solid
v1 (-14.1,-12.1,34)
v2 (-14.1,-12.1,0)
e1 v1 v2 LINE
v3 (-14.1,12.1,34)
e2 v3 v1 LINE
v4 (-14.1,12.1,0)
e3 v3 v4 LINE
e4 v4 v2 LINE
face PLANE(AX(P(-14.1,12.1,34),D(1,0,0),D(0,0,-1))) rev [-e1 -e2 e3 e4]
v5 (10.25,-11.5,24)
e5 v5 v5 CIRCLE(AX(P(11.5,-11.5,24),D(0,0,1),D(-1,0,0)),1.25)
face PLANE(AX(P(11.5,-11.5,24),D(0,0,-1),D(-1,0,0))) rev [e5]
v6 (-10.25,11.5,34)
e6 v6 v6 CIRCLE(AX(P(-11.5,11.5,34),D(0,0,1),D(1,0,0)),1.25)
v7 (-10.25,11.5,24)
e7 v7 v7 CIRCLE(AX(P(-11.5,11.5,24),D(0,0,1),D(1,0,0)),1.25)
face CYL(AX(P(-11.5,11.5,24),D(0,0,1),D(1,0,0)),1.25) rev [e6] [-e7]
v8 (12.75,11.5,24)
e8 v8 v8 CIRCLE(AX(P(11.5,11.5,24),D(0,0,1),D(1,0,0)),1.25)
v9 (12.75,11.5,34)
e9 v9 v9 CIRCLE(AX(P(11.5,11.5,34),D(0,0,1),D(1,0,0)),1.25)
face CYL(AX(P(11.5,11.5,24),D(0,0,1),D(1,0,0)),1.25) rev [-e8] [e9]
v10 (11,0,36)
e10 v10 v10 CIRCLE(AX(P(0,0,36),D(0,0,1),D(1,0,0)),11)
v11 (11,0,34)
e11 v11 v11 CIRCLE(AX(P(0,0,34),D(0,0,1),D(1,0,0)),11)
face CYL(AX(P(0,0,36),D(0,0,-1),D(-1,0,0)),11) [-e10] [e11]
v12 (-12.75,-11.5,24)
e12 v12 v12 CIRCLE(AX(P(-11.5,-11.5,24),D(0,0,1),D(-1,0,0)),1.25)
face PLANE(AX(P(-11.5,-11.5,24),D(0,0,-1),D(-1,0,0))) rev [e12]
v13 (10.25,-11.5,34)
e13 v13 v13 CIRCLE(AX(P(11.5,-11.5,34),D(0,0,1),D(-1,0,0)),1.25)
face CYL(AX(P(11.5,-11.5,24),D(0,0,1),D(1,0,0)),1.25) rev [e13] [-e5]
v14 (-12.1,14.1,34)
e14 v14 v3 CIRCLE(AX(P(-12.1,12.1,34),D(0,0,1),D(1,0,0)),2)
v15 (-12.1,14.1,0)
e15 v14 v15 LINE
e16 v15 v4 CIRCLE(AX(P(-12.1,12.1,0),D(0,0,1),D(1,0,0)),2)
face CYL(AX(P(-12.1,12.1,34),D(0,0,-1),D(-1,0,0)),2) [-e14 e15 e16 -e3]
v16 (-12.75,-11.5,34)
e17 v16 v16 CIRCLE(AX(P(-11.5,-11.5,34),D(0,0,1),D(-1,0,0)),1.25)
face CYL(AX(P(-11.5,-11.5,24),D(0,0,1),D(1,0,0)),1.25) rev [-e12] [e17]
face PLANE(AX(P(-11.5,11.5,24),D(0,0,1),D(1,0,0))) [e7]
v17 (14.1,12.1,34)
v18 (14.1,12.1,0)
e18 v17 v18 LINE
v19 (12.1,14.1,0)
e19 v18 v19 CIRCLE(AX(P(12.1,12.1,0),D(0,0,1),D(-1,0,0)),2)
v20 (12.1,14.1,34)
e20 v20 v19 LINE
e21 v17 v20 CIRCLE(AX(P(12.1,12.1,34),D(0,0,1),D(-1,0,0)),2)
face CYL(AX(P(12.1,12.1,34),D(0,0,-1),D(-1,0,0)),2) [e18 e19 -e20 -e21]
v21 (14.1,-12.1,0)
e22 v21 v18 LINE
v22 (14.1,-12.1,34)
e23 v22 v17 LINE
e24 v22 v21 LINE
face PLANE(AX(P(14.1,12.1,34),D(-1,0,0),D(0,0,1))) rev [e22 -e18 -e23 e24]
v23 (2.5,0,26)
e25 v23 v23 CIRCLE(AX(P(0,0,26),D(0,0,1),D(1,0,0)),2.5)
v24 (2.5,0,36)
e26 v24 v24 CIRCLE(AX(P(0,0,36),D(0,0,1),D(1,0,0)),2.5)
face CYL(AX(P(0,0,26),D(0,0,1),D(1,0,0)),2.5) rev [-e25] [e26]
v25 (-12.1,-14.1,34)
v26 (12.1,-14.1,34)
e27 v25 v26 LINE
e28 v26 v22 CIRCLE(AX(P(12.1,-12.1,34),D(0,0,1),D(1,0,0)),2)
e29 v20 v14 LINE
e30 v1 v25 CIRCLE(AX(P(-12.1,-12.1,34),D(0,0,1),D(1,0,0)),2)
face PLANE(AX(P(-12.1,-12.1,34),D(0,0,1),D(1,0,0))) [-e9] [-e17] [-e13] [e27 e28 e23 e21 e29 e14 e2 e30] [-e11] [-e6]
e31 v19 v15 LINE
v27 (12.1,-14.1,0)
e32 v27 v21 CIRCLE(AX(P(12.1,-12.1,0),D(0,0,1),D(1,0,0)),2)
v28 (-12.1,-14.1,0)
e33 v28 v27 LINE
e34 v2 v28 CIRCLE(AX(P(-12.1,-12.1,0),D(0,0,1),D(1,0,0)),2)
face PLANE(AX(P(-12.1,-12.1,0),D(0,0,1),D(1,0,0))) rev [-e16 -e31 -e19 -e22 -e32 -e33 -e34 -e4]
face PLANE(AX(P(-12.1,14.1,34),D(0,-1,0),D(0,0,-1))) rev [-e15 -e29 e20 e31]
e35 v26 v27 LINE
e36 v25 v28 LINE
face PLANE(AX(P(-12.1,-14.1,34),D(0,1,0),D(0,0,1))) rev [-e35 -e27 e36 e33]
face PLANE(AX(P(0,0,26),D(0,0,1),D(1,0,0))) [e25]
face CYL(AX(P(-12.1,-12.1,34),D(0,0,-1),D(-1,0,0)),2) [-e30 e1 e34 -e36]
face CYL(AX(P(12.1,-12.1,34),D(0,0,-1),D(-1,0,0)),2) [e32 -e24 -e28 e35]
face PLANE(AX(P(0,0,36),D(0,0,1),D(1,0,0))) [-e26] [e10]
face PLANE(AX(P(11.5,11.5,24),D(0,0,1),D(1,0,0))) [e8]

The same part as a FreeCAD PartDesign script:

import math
import FreeCAD as App
import Part
import Sketcher
from FreeCAD import Vector
Q = App.Units.Quantity

doc = App.newDocument("Part")
body = doc.addObject("PartDesign::Body", "Body")

sketch1 = doc.addObject("Sketcher::SketchObject", "Sketch")
body.addObject(sketch1)
sketch1.AttachmentSupport = (doc.XY_Plane, [""])
sketch1.MapMode = "FlatFace"
sketch1.addGeometry(Part.LineSegment(Vector(12.1, 14.1, 0), Vector(-12.1, 14.1, 0)), False)
sketch1.addGeometry(Part.ArcOfCircle(Part.Circle(Vector(-12.1, 12.1, 0), Vector(0, 0, 1), 2), math.radians(90), math.radians(180)), False)
sketch1.addGeometry(Part.LineSegment(Vector(-14.1, 12.1, 0), Vector(-14.1, -12.1, 0)), False)
sketch1.addGeometry(Part.ArcOfCircle(Part.Circle(Vector(-12.1, -12.1, 0), Vector(0, 0, 1), 2), math.radians(-180), math.radians(-90)), False)
sketch1.addGeometry(Part.LineSegment(Vector(-12.1, -14.1, 0), Vector(12.1, -14.1, 0)), False)
sketch1.addGeometry(Part.ArcOfCircle(Part.Circle(Vector(12.1, -12.1, 0), Vector(0, 0, 1), 2), math.radians(-90), math.radians(0)), False)
sketch1.addGeometry(Part.LineSegment(Vector(14.1, -12.1, 0), Vector(14.1, 12.1, 0)), False)
sketch1.addGeometry(Part.ArcOfCircle(Part.Circle(Vector(12.1, 12.1, 0), Vector(0, 0, 1), 2), math.radians(0), math.radians(90)), False)
sketch1.addConstraint(Sketcher.Constraint("Tangent", 0, 2, 1, 1))
sketch1.addConstraint(Sketcher.Constraint("Tangent", 1, 2, 2, 1))
sketch1.addConstraint(Sketcher.Constraint("Tangent", 2, 2, 3, 1))
sketch1.addConstraint(Sketcher.Constraint("Tangent", 3, 2, 4, 1))
sketch1.addConstraint(Sketcher.Constraint("Tangent", 4, 2, 5, 1))
sketch1.addConstraint(Sketcher.Constraint("Tangent", 5, 2, 6, 1))
sketch1.addConstraint(Sketcher.Constraint("Tangent", 6, 2, 7, 1))
sketch1.addConstraint(Sketcher.Constraint("Tangent", 7, 2, 0, 1))
sketch1.addConstraint(Sketcher.Constraint("Horizontal", 0))
sketch1.addConstraint(Sketcher.Constraint("Vertical", 2))
sketch1.addConstraint(Sketcher.Constraint("Horizontal", 4))
sketch1.addConstraint(Sketcher.Constraint("Vertical", 6))
sketch1.addConstraint(Sketcher.Constraint("Equal", 1, 3))
sketch1.addConstraint(Sketcher.Constraint("Equal", 3, 5))
sketch1.addConstraint(Sketcher.Constraint("Equal", 5, 7))
sketch1.addConstraint(Sketcher.Constraint("Symmetric", 1, 3, 5, 3, -1, 1))
sketch1.addConstraint(Sketcher.Constraint("Equal", 4, 2))
sketch1.addConstraint(Sketcher.Constraint("Radius", 1, Q("2 mm")))
sketch1.addConstraint(Sketcher.Constraint("DistanceX", 0, 2, 0, 1, Q("24.2 mm")))
pad1 = doc.addObject("PartDesign::Pad", "Pad")
body.addObject(pad1)
pad1.Profile = sketch1
pad1.Length = 34

sketch2 = doc.addObject("Sketcher::SketchObject", "Sketch001")
body.addObject(sketch2)
sketch2.AttachmentSupport = (doc.XY_Plane, [""])
sketch2.MapMode = "FlatFace"
sketch2.AttachmentOffset = App.Placement(Vector(0, 0, 34), App.Rotation())
sketch2.addGeometry(Part.Circle(Vector(0, 0, 0), Vector(0, 0, 1), 11), False)
sketch2.addConstraint(Sketcher.Constraint("Coincident", 0, 3, -1, 1))
sketch2.addConstraint(Sketcher.Constraint("Diameter", 0, Q("22 mm")))
pad2 = doc.addObject("PartDesign::Pad", "Pad001")
body.addObject(pad2)
pad2.Profile = sketch2
pad2.Length = 2

sketch3 = doc.addObject("Sketcher::SketchObject", "Sketch002")
body.addObject(sketch3)
sketch3.AttachmentSupport = (doc.XY_Plane, [""])
sketch3.MapMode = "FlatFace"
sketch3.AttachmentOffset = App.Placement(Vector(0, 0, 36), App.Rotation())
sketch3.addGeometry(Part.Circle(Vector(0, 0, 0), Vector(0, 0, 1), 2.5), False)
sketch3.addConstraint(Sketcher.Constraint("Coincident", 0, 3, -1, 1))
sketch3.addConstraint(Sketcher.Constraint("Diameter", 0, Q("5 mm")))
pocket1 = doc.addObject("PartDesign::Pocket", "Pocket")
body.addObject(pocket1)
pocket1.Profile = sketch3
pocket1.Length = 10

sketch4 = doc.addObject("Sketcher::SketchObject", "Sketch003")
body.addObject(sketch4)
sketch4.AttachmentSupport = (doc.XY_Plane, [""])
sketch4.MapMode = "FlatFace"
sketch4.AttachmentOffset = App.Placement(Vector(0, 0, 34), App.Rotation())
sketch4.addGeometry(Part.Circle(Vector(-11.5, 11.5, 0), Vector(0, 0, 1), 1.2), False)
sketch4.addGeometry(Part.Circle(Vector(11.5, 11.5, 0), Vector(0, 0, 1), 1.2), False)
sketch4.addGeometry(Part.Circle(Vector(11.5, -11.5, 0), Vector(0, 0, 1), 1.2), False)
sketch4.addGeometry(Part.Circle(Vector(-11.5, -11.5, 0), Vector(0, 0, 1), 1.2), False)
sketch4.addConstraint(Sketcher.Constraint("Equal", 0, 1))
sketch4.addConstraint(Sketcher.Constraint("Equal", 1, 2))
sketch4.addConstraint(Sketcher.Constraint("Equal", 2, 3))
sketch4.addConstraint(Sketcher.Constraint("Symmetric", 0, 3, 2, 3, -1, 1))
sketch4.addConstraint(Sketcher.Constraint("Symmetric", 1, 3, 3, 3, -1, 1))
sketch4.addConstraint(Sketcher.Constraint("Symmetric", 0, 3, 1, 3, -2))
sketch4.addConstraint(Sketcher.Constraint("Diameter", 0, Q("2.5 mm")))
sketch4.addConstraint(Sketcher.Constraint("DistanceX", 0, 3, 1, 3, Q("23 mm")))
sketch4.addConstraint(Sketcher.Constraint("DistanceY", 2, 3, 1, 3, Q("23 mm")))
pocket2 = doc.addObject("PartDesign::Pocket", "Pocket001")
body.addObject(pocket2)
pocket2.Profile = sketch4
pocket2.Length = 10

doc.recompute()
